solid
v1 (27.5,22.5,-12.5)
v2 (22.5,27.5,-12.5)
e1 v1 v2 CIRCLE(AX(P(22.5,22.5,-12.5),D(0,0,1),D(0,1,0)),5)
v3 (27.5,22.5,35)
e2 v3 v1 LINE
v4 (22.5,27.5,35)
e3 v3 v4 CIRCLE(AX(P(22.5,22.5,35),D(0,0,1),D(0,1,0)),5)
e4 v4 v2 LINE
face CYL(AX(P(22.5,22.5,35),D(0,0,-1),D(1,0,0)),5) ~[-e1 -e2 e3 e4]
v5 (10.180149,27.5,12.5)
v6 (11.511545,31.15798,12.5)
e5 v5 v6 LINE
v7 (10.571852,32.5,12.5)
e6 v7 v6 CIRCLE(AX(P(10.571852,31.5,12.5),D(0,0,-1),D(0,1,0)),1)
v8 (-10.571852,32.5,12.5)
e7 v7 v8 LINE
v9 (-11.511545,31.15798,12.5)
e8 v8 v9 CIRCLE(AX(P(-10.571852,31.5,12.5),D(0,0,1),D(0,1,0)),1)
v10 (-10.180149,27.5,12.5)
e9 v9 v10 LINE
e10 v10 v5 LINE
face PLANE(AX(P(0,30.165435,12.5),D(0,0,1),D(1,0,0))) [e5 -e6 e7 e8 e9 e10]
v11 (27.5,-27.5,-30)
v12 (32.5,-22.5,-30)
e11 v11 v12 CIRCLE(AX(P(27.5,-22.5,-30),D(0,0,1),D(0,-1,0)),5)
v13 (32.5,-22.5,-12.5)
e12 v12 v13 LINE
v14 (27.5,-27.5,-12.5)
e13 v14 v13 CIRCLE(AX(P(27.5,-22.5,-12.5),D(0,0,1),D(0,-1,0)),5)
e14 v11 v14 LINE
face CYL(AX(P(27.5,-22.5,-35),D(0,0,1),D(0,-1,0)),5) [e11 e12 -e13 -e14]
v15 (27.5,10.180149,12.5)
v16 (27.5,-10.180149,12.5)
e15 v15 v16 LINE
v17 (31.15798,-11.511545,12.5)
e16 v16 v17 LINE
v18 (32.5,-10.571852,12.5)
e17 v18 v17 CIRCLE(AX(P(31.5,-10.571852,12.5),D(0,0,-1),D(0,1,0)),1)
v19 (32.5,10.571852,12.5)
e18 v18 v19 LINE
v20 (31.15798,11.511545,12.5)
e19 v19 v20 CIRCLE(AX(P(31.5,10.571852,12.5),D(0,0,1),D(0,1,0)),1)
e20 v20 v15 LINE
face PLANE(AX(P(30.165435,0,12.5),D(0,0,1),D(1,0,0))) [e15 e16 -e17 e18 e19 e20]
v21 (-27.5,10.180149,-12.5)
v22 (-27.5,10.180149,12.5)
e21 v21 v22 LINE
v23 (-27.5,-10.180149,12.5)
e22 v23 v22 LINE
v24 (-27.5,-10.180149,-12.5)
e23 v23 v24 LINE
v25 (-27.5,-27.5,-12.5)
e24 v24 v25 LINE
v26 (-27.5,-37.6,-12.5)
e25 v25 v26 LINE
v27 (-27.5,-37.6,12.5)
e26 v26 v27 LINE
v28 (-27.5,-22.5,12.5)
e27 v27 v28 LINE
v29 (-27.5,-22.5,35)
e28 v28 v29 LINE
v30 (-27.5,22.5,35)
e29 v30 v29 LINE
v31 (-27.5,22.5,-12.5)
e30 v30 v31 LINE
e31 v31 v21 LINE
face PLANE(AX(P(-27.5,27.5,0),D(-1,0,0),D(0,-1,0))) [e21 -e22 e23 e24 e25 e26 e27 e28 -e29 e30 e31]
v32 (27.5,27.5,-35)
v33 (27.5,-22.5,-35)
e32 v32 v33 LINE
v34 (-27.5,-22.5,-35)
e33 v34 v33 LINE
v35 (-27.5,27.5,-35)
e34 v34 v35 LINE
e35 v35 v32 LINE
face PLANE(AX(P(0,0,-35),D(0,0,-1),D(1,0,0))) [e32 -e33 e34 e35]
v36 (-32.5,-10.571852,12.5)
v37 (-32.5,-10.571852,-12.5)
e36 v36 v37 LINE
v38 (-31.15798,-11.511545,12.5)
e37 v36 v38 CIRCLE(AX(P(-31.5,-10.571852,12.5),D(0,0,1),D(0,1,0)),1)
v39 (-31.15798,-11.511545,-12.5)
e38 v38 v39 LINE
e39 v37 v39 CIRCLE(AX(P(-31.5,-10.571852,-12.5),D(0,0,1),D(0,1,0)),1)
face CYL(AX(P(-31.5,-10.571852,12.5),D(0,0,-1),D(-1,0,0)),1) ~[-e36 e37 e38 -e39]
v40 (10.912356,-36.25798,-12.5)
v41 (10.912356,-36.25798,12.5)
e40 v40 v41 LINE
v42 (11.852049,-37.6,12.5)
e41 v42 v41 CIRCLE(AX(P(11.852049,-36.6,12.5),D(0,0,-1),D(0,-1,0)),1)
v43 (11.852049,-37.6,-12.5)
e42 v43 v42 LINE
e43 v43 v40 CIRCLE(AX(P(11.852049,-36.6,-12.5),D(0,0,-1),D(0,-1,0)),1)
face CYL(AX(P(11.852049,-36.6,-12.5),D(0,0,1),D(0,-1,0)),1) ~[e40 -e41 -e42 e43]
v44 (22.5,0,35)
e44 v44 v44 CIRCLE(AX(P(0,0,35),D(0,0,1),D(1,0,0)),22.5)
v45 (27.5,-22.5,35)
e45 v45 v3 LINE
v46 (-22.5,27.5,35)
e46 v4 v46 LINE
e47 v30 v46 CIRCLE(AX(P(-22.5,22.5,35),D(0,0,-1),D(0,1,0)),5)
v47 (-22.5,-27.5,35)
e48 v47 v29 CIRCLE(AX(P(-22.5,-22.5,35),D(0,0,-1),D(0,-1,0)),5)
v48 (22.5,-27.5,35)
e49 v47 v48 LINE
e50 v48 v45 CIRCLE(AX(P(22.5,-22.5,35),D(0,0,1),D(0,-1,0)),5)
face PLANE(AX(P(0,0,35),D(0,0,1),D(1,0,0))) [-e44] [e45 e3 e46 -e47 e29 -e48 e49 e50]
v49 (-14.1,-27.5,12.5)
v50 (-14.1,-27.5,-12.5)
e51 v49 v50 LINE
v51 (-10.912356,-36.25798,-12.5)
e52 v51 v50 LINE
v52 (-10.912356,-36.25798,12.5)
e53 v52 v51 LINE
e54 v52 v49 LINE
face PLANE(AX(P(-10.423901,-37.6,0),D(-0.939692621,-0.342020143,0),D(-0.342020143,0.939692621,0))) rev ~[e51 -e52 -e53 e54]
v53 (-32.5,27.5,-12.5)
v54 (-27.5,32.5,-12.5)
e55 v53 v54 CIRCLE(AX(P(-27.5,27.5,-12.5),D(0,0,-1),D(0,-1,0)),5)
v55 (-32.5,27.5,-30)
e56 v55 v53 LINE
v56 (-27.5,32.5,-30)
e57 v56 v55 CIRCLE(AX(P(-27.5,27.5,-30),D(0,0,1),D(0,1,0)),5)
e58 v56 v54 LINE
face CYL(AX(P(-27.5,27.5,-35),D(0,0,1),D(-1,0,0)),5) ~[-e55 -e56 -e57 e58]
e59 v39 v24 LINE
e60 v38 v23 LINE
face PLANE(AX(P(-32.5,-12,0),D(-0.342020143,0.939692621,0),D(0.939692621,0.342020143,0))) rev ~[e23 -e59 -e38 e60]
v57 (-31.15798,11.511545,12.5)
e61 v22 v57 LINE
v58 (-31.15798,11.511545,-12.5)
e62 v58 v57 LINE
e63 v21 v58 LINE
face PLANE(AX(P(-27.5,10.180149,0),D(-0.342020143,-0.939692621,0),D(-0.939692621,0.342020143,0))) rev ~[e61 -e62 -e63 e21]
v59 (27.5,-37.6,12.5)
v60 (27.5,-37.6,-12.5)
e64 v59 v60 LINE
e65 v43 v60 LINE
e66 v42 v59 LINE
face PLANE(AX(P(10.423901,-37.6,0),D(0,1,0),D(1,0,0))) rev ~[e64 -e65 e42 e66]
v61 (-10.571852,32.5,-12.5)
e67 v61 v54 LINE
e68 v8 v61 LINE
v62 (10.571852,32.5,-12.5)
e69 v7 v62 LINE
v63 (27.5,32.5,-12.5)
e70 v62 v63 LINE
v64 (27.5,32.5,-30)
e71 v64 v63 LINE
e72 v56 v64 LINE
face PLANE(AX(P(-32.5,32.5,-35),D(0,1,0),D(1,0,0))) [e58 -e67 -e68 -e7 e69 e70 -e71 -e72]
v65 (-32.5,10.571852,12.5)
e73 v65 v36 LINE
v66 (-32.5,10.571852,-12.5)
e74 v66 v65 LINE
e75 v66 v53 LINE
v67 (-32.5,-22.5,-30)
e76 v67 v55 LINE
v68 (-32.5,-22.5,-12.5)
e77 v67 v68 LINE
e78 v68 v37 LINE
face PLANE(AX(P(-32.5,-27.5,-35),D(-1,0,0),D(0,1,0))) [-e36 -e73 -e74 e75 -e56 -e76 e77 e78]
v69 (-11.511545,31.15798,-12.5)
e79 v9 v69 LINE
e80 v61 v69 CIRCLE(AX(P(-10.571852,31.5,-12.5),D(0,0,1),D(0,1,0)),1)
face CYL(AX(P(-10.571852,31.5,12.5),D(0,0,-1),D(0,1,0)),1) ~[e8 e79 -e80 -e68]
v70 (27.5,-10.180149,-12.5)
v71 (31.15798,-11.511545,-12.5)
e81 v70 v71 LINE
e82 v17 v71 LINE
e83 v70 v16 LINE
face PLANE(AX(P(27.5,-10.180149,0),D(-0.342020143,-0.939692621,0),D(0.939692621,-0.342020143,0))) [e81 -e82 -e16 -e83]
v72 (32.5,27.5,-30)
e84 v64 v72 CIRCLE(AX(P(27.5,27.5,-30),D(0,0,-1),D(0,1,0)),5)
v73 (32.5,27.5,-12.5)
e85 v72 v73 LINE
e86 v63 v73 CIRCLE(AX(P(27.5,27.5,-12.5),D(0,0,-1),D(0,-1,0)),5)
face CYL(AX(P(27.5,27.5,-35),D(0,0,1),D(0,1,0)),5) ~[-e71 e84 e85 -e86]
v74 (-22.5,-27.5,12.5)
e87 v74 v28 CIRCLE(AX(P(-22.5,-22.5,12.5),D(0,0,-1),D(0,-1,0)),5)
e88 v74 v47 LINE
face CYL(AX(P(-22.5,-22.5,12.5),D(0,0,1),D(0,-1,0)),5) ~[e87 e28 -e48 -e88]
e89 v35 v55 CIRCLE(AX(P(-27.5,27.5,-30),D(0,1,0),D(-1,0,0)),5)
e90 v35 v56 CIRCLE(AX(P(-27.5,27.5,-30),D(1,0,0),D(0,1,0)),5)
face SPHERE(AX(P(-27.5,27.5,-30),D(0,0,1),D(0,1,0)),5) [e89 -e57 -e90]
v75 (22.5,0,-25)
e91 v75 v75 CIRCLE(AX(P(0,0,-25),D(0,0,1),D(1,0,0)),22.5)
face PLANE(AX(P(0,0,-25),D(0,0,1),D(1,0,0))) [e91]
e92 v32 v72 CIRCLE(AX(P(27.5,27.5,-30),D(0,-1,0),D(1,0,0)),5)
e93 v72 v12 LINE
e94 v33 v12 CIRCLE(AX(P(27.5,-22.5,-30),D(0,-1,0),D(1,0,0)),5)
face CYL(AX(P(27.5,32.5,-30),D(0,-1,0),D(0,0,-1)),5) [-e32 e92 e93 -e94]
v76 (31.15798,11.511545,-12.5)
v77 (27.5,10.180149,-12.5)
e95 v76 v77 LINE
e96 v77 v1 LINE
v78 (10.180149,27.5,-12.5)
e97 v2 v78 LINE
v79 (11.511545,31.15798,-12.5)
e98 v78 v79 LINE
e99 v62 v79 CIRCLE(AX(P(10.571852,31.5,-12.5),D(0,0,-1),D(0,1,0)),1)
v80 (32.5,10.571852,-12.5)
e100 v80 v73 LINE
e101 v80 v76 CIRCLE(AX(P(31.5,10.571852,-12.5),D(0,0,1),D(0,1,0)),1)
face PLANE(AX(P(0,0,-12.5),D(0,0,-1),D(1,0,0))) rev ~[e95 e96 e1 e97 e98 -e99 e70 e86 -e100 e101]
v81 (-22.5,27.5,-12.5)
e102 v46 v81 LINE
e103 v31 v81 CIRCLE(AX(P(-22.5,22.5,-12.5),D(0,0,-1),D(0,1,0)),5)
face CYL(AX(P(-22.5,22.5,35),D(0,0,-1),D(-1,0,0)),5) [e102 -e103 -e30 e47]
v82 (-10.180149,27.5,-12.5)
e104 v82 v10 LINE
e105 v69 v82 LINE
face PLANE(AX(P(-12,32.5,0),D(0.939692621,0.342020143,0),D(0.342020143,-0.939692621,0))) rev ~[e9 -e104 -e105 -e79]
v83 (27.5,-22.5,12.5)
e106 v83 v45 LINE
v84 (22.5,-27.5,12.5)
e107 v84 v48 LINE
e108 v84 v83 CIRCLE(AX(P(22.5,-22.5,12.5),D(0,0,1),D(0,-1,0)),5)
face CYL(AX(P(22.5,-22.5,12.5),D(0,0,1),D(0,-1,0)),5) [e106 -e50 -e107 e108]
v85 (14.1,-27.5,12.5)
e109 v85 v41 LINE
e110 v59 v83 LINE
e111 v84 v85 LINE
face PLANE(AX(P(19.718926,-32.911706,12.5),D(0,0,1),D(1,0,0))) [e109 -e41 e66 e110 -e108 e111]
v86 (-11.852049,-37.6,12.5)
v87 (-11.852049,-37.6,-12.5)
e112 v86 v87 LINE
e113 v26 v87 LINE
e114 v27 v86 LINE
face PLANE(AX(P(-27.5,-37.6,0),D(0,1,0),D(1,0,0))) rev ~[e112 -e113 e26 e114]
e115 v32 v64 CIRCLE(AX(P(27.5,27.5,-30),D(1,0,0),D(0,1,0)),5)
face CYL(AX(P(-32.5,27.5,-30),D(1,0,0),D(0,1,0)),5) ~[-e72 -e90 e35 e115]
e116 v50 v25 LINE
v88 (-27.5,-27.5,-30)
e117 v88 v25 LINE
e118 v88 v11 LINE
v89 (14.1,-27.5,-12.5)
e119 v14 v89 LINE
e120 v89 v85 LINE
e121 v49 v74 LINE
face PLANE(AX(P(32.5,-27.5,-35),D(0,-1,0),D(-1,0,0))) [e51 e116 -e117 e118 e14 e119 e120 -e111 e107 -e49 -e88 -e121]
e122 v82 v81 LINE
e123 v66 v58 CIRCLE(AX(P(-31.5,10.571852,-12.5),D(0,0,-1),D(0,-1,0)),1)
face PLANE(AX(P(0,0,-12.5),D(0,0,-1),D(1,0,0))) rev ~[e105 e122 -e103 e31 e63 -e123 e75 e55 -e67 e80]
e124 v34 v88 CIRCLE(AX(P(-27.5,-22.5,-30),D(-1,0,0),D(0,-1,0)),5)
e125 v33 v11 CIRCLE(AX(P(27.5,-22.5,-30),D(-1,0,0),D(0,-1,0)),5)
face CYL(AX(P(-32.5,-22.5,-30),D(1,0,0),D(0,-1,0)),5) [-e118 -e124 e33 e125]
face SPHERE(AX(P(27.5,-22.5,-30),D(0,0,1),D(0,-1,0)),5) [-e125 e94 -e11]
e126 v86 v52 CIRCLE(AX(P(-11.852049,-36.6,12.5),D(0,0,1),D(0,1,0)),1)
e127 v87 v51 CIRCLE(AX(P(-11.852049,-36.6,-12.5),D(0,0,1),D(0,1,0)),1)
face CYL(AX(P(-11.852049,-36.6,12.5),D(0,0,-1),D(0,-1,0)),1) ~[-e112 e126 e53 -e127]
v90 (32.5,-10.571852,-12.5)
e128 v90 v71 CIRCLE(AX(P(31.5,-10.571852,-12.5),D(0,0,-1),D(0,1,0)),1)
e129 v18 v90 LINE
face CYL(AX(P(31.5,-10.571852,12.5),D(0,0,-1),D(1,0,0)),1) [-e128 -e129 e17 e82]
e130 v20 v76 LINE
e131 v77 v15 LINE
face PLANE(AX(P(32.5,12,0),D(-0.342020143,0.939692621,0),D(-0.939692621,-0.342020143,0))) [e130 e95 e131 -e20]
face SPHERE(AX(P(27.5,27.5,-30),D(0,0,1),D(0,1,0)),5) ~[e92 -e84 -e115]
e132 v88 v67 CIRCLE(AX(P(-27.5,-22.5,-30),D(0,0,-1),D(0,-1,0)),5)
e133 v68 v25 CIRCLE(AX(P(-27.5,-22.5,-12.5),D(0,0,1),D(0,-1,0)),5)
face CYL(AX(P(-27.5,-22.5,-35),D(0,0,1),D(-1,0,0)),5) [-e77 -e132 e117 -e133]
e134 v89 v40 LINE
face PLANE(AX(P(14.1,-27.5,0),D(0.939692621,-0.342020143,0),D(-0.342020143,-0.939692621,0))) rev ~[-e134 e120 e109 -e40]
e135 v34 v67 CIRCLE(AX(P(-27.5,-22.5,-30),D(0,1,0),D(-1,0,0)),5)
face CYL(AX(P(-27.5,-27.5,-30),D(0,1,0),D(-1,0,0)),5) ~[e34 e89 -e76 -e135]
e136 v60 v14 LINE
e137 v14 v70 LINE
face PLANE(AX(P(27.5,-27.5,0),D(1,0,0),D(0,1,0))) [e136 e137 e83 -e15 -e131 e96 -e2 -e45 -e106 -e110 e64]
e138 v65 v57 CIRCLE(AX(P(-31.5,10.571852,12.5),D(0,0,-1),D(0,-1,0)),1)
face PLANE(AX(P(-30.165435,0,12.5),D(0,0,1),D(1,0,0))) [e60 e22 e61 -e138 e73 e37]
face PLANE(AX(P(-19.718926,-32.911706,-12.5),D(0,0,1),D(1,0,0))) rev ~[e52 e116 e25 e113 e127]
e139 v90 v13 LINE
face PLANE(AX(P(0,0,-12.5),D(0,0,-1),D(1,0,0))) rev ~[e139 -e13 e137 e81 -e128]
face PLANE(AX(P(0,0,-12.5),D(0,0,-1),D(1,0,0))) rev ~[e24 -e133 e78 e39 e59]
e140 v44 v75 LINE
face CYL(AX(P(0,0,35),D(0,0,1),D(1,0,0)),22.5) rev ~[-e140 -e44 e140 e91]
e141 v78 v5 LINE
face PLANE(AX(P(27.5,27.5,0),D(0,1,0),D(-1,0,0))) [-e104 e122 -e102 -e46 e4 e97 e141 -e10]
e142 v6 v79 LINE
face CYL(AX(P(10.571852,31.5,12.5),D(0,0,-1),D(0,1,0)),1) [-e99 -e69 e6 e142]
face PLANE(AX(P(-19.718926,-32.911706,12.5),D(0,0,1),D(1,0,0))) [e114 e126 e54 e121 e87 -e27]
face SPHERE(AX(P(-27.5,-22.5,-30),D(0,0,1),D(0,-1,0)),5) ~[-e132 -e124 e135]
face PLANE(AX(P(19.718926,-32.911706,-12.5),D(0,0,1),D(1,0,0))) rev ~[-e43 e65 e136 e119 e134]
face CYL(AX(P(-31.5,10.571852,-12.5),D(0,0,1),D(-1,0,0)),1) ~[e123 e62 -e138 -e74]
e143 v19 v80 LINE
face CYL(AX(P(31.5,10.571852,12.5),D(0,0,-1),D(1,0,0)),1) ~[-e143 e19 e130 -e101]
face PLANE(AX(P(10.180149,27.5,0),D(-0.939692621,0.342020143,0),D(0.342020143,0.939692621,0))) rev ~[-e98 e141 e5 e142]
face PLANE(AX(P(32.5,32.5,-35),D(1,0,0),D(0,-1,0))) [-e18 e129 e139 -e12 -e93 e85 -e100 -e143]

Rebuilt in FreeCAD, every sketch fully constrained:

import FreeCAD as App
import Part
import Sketcher
from FreeCAD import Vector
Q = App.Units.Quantity


def edges_at(feature, points):
    """Names of the edges that pass closest to the given points."""
    edges = feature.Shape.Edges
    near = lambda p: min(range(len(edges)), key=lambda i: edges[i].distToShape(Part.Vertex(*p))[0])
    return sorted({f"Edge{near(p) + 1}" for p in points})


def add_polygon(sketch, points):
    """Adds a closed chain of lines whose ends are joined by coincident constraints."""
    first, n = sketch.GeometryCount, len(points)
    for a, b in zip(points, points[1:] + points[:1]):
        sketch.addGeometry(Part.LineSegment(App.Vector(*a, 0), App.Vector(*b, 0)), False)
    for i in range(n):
        sketch.addConstraint(Sketcher.Constraint("Coincident", first + i, 2, first + (i + 1) % n, 1))

doc = App.newDocument("Part")
body = doc.addObject("PartDesign::Body", "Body")

# Sketch on XY plane
sketch1 = doc.addObject("Sketcher::SketchObject", "Sketch")
body.addObject(sketch1)
sketch1.AttachmentSupport = (doc.XY_Plane, [""])
sketch1.MapMode = "FlatFace"
add_polygon(sketch1, [(-27.5, 27.5), (-27.5, -27.5), (27.5, -27.5), (27.5, 27.5)])  # lines 0-3
sketch1.addConstraint(Sketcher.Constraint("Vertical", 0))
sketch1.addConstraint(Sketcher.Constraint("Horizontal", 1))
sketch1.addConstraint(Sketcher.Constraint("Vertical", 2))
sketch1.addConstraint(Sketcher.Constraint("Horizontal", 3))
sketch1.addConstraint(Sketcher.Constraint("Symmetric", 0, 2, 2, 2, -1, 1))
sketch1.addConstraint(Sketcher.Constraint("Equal", 3, 0))
sketch1.addConstraint(Sketcher.Constraint("DistanceX", 1, 1, 1, 2, Q("55 mm")))
pad1 = doc.addObject("PartDesign::Pad", "Pad")
body.addObject(pad1)
pad1.Profile = sketch1
pad1.Length = 70
pad1.Midplane = True

# Sketch on XY plane
sketch2 = doc.addObject("Sketcher::SketchObject", "Sketch001")
body.addObject(sketch2)
sketch2.AttachmentSupport = (doc.XY_Plane, [""])
sketch2.MapMode = "FlatFace"
add_polygon(sketch2, [(-12, 32.5), (-10.180149, 27.5), (10.180149, 27.5), (12, 32.5)])  # lines 0-3
add_polygon(sketch2, [(-27.5, -10.180149), (-27.5, 10.180149), (-32.5, 12), (-32.5, -12)])  # lines 4-7
add_polygon(sketch2, [(-14.1, -27.5), (-27.5, -27.5), (-27.5, -37.6), (-10.423901, -37.6)])  # lines 8-11
add_polygon(sketch2, [(27.5, -27.5), (14.1, -27.5), (10.423901, -37.6), (27.5, -37.6)])  # lines 12-15
add_polygon(sketch2, [(32.5, 12), (27.5, 10.180149), (27.5, -10.180149), (32.5, -12)])  # lines 16-19
sketch2.addConstraint(Sketcher.Constraint("Horizontal", 1))
sketch2.addConstraint(Sketcher.Constraint("Horizontal", 3))
sketch2.addConstraint(Sketcher.Constraint("Vertical", 4))
sketch2.addConstraint(Sketcher.Constraint("Vertical", 6))
sketch2.addConstraint(Sketcher.Constraint("Horizontal", 8))
sketch2.addConstraint(Sketcher.Constraint("Vertical", 9))
sketch2.addConstraint(Sketcher.Constraint("Horizontal", 10))
sketch2.addConstraint(Sketcher.Constraint("Horizontal", 12))
sketch2.addConstraint(Sketcher.Constraint("Horizontal", 14))
sketch2.addConstraint(Sketcher.Constraint("Vertical", 15))
sketch2.addConstraint(Sketcher.Constraint("Vertical", 17))
sketch2.addConstraint(Sketcher.Constraint("Vertical", 19))
sketch2.addConstraint(Sketcher.Constraint("Symmetric", 7, 2, 16, 2, -1, 1))
sketch2.addConstraint(Sketcher.Constraint("Symmetric", 5, 2, 18, 2, -1, 1))
sketch2.addConstraint(Sketcher.Constraint("Symmetric", 11, 2, 12, 2, -2))
sketch2.addConstraint(Sketcher.Constraint("Symmetric", 10, 2, 13, 2, -2))
sketch2.addConstraint(Sketcher.Constraint("Perpendicular", 2, 5))
sketch2.addConstraint(Sketcher.Constraint("Perpendicular", 0, 7))
sketch2.addConstraint(Sketcher.Constraint("Perpendicular", 7, 11))
sketch2.addConstraint(Sketcher.Constraint("Perpendicular", 5, 13))
sketch2.addConstraint(Sketcher.Constraint("Perpendicular", 11, 16))
sketch2.addConstraint(Sketcher.Constraint("Perpendicular", 13, 18))
sketch2.addConstraint(Sketcher.Constraint("Horizontal", 4, 2, 16, 2))
sketch2.addConstraint(Sketcher.Constraint("Vertical", 7, 2, 8, 2))
sketch2.addConstraint(Sketcher.Constraint("Vertical", 15, 2, 16, 2))
sketch2.addConstraint(Sketcher.Constraint("Equal", 1, 4))
sketch2.addConstraint(Sketcher.Constraint("Equal", 3, 6))
sketch2.addConstraint(Sketcher.Constraint("DistanceX", 3, 2, 3, 1, Q("24 mm")))
sketch2.addConstraint(Sketcher.Constraint("Angle", 0, Q("-70 deg")))
sketch2.addConstraint(Sketcher.Constraint("DistanceX", 8, 2, 8, 1, Q("13.4 mm")))
sketch2.addConstraint(Sketcher.Constraint("DistanceY", 9, 2, 9, 1, Q("10.1 mm")))
sketch2.addConstraint(Sketcher.Constraint("DistanceX", -1, 1, 2, 2, Q("12 mm")))
sketch2.addConstraint(Sketcher.Constraint("DistanceY", 1, 2, 2, 2, Q("5 mm")))
sketch2.addConstraint(Sketcher.Constraint("DistanceY", 8, 2, 0, 2, Q("55 mm")))
sketch2.addConstraint(Sketcher.Constraint("DistanceX", 9, 2, 14, 2, Q("55 mm")))
sketch2.addConstraint(Sketcher.Constraint("DistanceY", -1, 1, 0, 2, Q("27.5 mm")))
pad2 = doc.addObject("PartDesign::Pad", "Pad001")
body.addObject(pad2)
pad2.Profile = sketch2
pad2.Length = 25
pad2.Midplane = True

# Sketch on XY plane
sketch3 = doc.addObject("Sketcher::SketchObject", "Sketch002")
body.addObject(sketch3)
sketch3.AttachmentSupport = (doc.XY_Plane, [""])
sketch3.MapMode = "FlatFace"
sketch3.AttachmentOffset = App.Placement(Vector(0, 0, -35), App.Rotation())
add_polygon(sketch3, [(-32.5, -27.5), (-32.5, 32.5), (32.5, 32.5), (32.5, -27.5)])  # lines 0-3
sketch3.addConstraint(Sketcher.Constraint("Vertical", 0))
sketch3.addConstraint(Sketcher.Constraint("Horizontal", 1))
sketch3.addConstraint(Sketcher.Constraint("Vertical", 2))
sketch3.addConstraint(Sketcher.Constraint("Horizontal", 3))
sketch3.addConstraint(Sketcher.Constraint("DistanceX", 1, 1, 1, 2, Q("65 mm")))
sketch3.addConstraint(Sketcher.Constraint("DistanceY", 0, 1, 0, 2, Q("60 mm")))
sketch3.addConstraint(Sketcher.Constraint("DistanceX", 0, 2, -1, 1, Q("32.5 mm")))
sketch3.addConstraint(Sketcher.Constraint("DistanceY", -1, 1, 0, 2, Q("32.5 mm")))
pad3 = doc.addObject("PartDesign::Pad", "Pad002")
body.addObject(pad3)
pad3.Profile = sketch3
pad3.Length = 22.5

# Sketch on XY plane
sketch4 = doc.addObject("Sketcher::SketchObject", "Sketch003")
body.addObject(sketch4)
sketch4.AttachmentSupport = (doc.XY_Plane, [""])
sketch4.MapMode = "FlatFace"
sketch4.AttachmentOffset = App.Placement(Vector(0, 0, 35), App.Rotation())
sketch4.addGeometry(Part.Circle(Vector(0, 0, 0), Vector(0, 0, 1), 22.5), False)
sketch4.addConstraint(Sketcher.Constraint("Coincident", 0, 3, -1, 1))
sketch4.addConstraint(Sketcher.Constraint("Diameter", 0, Q("45 mm")))
pocket1 = doc.addObject("PartDesign::Pocket", "Pocket")
body.addObject(pocket1)
pocket1.Profile = sketch4
pocket1.Length = 60
doc.recompute()

fillet = doc.addObject("PartDesign::Fillet", "Fillet")
body.addObject(fillet)
fillet.Base = (pocket1, edges_at(pocket1, [
    (-27.5, -27.5, 23.75),
    (-32.5, -27.5, -23.75),
    (27.5, -27.5, 23.75),
    (32.5, -27.5, -23.75),
    (27.5, 27.5, 11.25),
    (32.5, 32.5, -23.75),
    (-27.5, 27.5, 11.25),
    (-32.5, 32.5, -23.75),
    (0, -27.5, -35),
    (0, 32.5, -35),
    (32.5, 2.5, -35),
    (-32.5, 2.5, -35),
]))
fillet.Radius = 5
doc.recompute()

fillet2 = doc.addObject("PartDesign::Fillet", "Fillet001")
body.addObject(fillet2)
fillet2.Base = (fillet, edges_at(fillet, [
    (32.5, 12, 0),
    (32.5, -12, 0),
    (10.424, -37.6, 0),
    (-10.424, -37.6, 0),
    (-32.5, -12, 0),
    (-32.5, 12, 0),
    (-12, 32.5, 0),
    (12, 32.5, 0),
]))
fillet2.Radius = 1

doc.recompute()
